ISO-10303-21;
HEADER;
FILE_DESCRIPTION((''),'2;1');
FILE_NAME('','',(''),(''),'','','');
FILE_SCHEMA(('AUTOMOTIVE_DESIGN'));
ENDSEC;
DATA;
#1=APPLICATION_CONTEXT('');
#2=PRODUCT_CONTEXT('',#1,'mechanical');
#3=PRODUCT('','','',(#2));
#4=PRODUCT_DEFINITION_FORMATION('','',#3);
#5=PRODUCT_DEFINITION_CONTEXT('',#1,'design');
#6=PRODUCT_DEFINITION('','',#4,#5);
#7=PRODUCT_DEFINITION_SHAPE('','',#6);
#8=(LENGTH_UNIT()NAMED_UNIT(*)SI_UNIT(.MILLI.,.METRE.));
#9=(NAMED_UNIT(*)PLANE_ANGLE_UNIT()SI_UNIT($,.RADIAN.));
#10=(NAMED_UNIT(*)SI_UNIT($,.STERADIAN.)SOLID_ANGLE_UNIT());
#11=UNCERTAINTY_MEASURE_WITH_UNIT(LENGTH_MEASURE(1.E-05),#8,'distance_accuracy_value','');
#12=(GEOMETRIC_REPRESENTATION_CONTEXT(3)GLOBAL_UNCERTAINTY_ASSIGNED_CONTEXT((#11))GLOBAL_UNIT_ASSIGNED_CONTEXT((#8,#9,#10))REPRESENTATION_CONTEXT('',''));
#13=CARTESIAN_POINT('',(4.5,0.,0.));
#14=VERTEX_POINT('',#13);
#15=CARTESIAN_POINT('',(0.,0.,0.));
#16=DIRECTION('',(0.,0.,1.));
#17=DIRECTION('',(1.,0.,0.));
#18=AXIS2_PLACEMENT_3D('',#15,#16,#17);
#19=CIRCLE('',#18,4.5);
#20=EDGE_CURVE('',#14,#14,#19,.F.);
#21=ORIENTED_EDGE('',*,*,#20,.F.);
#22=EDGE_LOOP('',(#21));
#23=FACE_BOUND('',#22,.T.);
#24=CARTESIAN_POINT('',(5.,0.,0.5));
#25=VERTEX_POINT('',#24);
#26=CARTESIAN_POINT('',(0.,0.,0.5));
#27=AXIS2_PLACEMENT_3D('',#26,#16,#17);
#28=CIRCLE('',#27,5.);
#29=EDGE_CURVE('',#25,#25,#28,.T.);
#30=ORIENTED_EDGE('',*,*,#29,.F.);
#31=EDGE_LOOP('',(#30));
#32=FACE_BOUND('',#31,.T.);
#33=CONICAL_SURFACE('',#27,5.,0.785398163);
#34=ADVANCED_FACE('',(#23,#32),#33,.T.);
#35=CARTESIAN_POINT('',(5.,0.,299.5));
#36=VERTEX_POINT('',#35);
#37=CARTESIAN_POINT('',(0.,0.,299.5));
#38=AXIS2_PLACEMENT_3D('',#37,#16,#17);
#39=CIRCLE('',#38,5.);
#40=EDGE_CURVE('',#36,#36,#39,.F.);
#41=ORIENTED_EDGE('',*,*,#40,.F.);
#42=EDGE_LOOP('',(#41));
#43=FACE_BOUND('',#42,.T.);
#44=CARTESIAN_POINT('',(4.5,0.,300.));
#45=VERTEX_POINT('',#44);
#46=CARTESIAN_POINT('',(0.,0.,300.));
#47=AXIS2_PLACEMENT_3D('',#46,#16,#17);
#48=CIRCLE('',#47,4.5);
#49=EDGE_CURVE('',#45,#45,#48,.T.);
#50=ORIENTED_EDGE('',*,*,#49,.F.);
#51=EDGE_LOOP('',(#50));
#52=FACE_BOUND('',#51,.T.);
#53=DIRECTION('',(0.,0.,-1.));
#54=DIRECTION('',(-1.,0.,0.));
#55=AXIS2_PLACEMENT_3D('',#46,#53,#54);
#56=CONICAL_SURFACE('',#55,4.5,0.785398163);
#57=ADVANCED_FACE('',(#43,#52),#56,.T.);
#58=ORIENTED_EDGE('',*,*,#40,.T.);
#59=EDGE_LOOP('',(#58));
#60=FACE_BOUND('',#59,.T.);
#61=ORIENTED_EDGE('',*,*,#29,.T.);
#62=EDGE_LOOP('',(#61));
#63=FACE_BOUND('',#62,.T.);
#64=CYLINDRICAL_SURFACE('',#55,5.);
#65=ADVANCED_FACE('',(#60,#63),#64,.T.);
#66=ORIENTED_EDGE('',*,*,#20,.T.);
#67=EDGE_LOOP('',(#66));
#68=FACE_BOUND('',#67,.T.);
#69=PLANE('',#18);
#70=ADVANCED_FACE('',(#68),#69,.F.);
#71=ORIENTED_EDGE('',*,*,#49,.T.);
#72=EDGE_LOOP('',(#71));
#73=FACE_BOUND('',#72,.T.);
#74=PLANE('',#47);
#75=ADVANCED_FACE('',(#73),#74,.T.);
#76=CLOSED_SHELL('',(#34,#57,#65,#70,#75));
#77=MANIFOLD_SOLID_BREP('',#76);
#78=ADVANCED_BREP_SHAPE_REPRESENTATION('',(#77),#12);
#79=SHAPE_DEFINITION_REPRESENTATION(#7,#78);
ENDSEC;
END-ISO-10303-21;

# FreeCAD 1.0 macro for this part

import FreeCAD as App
import Part
import Sketcher
from FreeCAD import Vector
Q = App.Units.Quantity


def edges_at(feature, points):
    """Names of the edges that pass closest to the given points."""
    edges = feature.Shape.Edges
    near = lambda p: min(range(len(edges)), key=lambda i: edges[i].distToShape(Part.Vertex(*p))[0])
    return sorted({f"Edge{near(p) + 1}" for p in points})

doc = App.newDocument("Part")
params = doc.addObject("Spreadsheet::Sheet", "Params")
for row, (alias, value) in enumerate([
    ("sketch1_diameter", "10 mm"),
    ("pad1_length", "300 mm"),
    ("chamfer_size", "0.5 mm"),
], start=1):
    params.set(f"A{row}", alias)
    params.set(f"B{row}", "=" + value)
    params.setAlias(f"B{row}", alias)

body = doc.addObject("PartDesign::Body", "Body")

sketch1 = body.newObject("Sketcher::SketchObject", "Sketch")
sketch1.AttachmentSupport = (doc.getObject("XY_Plane"), [""])
sketch1.MapMode = "FlatFace"
sketch1.addGeometry(Part.Circle(Vector(0, 0, 0), Vector(0, 0, 1), 5), False)
sketch1.addConstraint([
    Sketcher.Constraint("Coincident", 0, 3, -1, 1),
    Sketcher.Constraint("Diameter", 0, Q("10 mm")),
])
sketch1.setExpression("Constraints[1]", "Params.sketch1_diameter")
pad1 = body.newObject("PartDesign::Pad", "Pad")
pad1.Profile = sketch1
pad1.setExpression("Length", "Params.pad1_length")
doc.recompute()

chamfer = body.newObject("PartDesign::Chamfer", "Chamfer")
chamfer.Base = (pad1, edges_at(pad1, [(-5, 0, 0), (-5, 0, 300)]))
chamfer.setExpression("Size", "Params.chamfer_size")

doc.recompute()
